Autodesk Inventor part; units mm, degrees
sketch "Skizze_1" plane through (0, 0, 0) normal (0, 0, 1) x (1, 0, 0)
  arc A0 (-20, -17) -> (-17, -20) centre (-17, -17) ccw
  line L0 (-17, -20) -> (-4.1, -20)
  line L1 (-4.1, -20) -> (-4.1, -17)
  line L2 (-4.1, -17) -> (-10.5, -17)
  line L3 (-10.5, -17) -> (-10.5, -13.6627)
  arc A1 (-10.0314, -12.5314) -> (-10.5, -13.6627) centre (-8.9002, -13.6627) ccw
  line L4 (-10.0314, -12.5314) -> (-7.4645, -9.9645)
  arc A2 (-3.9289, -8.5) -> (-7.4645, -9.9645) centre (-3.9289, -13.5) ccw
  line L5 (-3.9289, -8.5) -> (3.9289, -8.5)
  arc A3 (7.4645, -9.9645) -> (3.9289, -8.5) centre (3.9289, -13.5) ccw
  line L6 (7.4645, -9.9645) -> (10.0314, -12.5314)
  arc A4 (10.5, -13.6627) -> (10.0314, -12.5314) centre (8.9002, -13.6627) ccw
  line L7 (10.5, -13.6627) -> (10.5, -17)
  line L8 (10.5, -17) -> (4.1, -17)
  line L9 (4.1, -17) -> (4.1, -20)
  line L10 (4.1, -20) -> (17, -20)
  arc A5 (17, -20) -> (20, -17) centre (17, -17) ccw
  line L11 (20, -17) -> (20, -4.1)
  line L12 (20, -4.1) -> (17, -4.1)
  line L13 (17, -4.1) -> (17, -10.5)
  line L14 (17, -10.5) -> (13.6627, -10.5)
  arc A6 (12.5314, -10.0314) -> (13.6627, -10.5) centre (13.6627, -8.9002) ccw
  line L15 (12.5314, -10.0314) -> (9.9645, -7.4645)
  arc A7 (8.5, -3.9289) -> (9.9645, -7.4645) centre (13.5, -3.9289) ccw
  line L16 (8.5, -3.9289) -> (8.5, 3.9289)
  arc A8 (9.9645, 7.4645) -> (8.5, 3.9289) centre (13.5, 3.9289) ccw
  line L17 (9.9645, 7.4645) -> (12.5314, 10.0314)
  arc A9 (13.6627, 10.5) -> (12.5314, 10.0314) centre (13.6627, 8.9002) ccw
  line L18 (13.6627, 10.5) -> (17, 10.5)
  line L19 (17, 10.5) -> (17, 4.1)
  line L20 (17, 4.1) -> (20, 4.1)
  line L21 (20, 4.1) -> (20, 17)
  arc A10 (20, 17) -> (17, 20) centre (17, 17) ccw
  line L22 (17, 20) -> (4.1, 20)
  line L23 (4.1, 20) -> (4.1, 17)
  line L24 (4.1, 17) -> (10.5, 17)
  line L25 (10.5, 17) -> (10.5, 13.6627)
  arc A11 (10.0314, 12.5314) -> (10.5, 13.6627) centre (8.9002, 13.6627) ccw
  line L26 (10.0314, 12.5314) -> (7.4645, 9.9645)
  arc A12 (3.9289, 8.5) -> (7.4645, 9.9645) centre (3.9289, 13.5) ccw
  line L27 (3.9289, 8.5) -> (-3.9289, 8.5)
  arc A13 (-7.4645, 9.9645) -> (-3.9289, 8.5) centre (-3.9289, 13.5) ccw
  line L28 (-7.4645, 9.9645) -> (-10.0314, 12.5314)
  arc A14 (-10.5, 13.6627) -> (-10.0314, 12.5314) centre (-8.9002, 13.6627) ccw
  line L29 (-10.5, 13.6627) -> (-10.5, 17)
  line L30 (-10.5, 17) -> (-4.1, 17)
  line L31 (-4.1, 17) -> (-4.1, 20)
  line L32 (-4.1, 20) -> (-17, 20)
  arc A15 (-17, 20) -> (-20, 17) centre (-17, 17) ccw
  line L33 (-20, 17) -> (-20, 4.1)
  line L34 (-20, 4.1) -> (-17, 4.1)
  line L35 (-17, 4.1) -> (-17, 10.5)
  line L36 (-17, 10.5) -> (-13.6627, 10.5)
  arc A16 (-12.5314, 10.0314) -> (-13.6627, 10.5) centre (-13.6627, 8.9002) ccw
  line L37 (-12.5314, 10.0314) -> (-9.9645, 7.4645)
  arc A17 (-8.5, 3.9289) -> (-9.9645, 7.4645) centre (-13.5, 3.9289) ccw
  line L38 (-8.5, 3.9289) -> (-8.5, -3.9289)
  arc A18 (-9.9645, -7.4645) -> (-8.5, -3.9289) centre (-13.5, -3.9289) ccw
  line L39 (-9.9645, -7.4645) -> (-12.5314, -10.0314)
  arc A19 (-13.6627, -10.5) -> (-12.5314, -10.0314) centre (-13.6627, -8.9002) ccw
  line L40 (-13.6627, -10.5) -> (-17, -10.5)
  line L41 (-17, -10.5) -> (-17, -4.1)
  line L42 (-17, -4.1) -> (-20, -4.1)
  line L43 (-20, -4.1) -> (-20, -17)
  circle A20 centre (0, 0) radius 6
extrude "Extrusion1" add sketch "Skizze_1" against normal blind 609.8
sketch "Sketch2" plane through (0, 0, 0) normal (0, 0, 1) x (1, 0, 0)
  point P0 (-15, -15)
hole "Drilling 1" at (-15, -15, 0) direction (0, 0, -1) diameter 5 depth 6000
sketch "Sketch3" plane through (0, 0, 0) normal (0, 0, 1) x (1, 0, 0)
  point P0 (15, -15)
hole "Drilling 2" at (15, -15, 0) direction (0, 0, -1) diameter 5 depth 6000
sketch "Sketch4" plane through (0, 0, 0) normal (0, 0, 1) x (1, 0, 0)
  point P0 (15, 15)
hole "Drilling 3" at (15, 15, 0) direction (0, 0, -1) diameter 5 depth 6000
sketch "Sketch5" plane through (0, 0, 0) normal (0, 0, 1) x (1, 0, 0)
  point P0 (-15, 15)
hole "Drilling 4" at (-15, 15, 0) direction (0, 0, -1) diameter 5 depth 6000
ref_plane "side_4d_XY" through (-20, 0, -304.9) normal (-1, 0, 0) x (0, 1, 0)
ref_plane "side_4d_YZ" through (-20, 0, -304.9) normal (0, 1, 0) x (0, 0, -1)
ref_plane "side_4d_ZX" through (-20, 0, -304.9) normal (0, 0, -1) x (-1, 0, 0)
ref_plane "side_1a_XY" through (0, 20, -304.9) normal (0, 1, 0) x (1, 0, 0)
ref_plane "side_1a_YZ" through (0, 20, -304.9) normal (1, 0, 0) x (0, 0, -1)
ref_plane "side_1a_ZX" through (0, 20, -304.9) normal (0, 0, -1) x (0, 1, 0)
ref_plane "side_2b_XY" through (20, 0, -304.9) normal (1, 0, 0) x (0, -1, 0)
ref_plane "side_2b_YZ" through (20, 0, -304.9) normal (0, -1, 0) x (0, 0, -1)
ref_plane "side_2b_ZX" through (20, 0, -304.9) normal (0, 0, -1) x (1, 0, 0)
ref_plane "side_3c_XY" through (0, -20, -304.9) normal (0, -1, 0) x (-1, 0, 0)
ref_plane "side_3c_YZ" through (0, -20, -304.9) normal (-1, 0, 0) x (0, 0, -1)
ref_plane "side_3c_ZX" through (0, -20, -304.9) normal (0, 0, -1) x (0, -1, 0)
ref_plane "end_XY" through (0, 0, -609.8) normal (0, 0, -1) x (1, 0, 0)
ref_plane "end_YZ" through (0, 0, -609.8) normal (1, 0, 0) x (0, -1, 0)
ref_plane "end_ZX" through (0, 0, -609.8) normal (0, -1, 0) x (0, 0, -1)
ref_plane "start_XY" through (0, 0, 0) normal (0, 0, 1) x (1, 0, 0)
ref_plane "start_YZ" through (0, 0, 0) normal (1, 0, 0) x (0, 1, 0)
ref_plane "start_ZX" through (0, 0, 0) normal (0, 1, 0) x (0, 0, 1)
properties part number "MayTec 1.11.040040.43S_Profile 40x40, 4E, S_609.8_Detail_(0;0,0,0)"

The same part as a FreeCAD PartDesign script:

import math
import FreeCAD as App
import Part
import Sketcher
Q = App.Units.Quantity

doc = App.newDocument("Part")
body = doc.addObject("PartDesign::Body", "Body")

sketch1 = body.newObject("Sketcher::SketchObject", "Sketch")
sketch1.AttachmentSupport = (doc.getObject("XY_Plane"), [""])
sketch1.MapMode = "FlatFace"
sketch1.addGeometry([
    Part.LineSegment(App.Vector(-20, -4.1, 0), App.Vector(-20, -17, 0)),
    Part.ArcOfCircle(Part.Circle(App.Vector(-17, -17, 0), App.Vector(0, 0, 1), 3), math.radians(180), math.radians(270)),
    Part.LineSegment(App.Vector(-17, -20, 0), App.Vector(-4.1, -20, 0)),
    Part.LineSegment(App.Vector(-4.1, -20, 0), App.Vector(-4.1, -17, 0)),
    Part.LineSegment(App.Vector(-4.1, -17, 0), App.Vector(-10.5, -17, 0)),
    Part.LineSegment(App.Vector(-10.5, -17, 0), App.Vector(-10.5, -13.7, 0)),
    Part.ArcOfCircle(Part.Circle(App.Vector(-8.9, -13.7, 0), App.Vector(0, 0, 1), 1.6), math.radians(135), math.radians(180)),
    Part.LineSegment(App.Vector(-10, -12.5, 0), App.Vector(-7.5, -10, 0)),
    Part.ArcOfCircle(Part.Circle(App.Vector(-3.9, -13.5, 0), App.Vector(0, 0, 1), 5), math.radians(90), math.radians(135)),
    Part.LineSegment(App.Vector(-3.9, -8.5, 0), App.Vector(3.9, -8.5, 0)),
    Part.ArcOfCircle(Part.Circle(App.Vector(3.9, -13.5, 0), App.Vector(0, 0, 1), 5), math.radians(45), math.radians(90)),
    Part.LineSegment(App.Vector(7.5, -10, 0), App.Vector(10, -12.5, 0)),
    Part.ArcOfCircle(Part.Circle(App.Vector(8.9, -13.7, 0), App.Vector(0, 0, 1), 1.6), math.radians(0), math.radians(45)),
    Part.LineSegment(App.Vector(10.5, -13.7, 0), App.Vector(10.5, -17, 0)),
    Part.LineSegment(App.Vector(10.5, -17, 0), App.Vector(4.1, -17, 0)),
    Part.LineSegment(App.Vector(4.1, -17, 0), App.Vector(4.1, -20, 0)),
    Part.LineSegment(App.Vector(4.1, -20, 0), App.Vector(17, -20, 0)),
    Part.ArcOfCircle(Part.Circle(App.Vector(17, -17, 0), App.Vector(0, 0, 1), 3), math.radians(-90), math.radians(0)),
    Part.LineSegment(App.Vector(20, -17, 0), App.Vector(20, -4.1, 0)),
    Part.LineSegment(App.Vector(20, -4.1, 0), App.Vector(17, -4.1, 0)),
    Part.LineSegment(App.Vector(17, -4.1, 0), App.Vector(17, -10.5, 0)),
    Part.LineSegment(App.Vector(17, -10.5, 0), App.Vector(13.7, -10.5, 0)),
    Part.ArcOfCircle(Part.Circle(App.Vector(13.7, -8.9, 0), App.Vector(0, 0, 1), 1.6), math.radians(-135), math.radians(-90)),
    Part.LineSegment(App.Vector(12.5, -10, 0), App.Vector(10, -7.5, 0)),
    Part.ArcOfCircle(Part.Circle(App.Vector(13.5, -3.9, 0), App.Vector(0, 0, 1), 5), math.radians(180), math.radians(225)),
    Part.LineSegment(App.Vector(8.5, -3.9, 0), App.Vector(8.5, 3.9, 0)),
    Part.ArcOfCircle(Part.Circle(App.Vector(13.5, 3.9, 0), App.Vector(0, 0, 1), 5), math.radians(135), math.radians(180)),
    Part.LineSegment(App.Vector(10, 7.5, 0), App.Vector(12.5, 10, 0)),
    Part.ArcOfCircle(Part.Circle(App.Vector(13.7, 8.9, 0), App.Vector(0, 0, 1), 1.6), math.radians(90), math.radians(135)),
    Part.LineSegment(App.Vector(13.7, 10.5, 0), App.Vector(17, 10.5, 0)),
    Part.LineSegment(App.Vector(17, 10.5, 0), App.Vector(17, 4.1, 0)),
    Part.LineSegment(App.Vector(17, 4.1, 0), App.Vector(20, 4.1, 0)),
    Part.LineSegment(App.Vector(20, 4.1, 0), App.Vector(20, 17, 0)),
    Part.ArcOfCircle(Part.Circle(App.Vector(17, 17, 0), App.Vector(0, 0, 1), 3), math.radians(0), math.radians(90)),
    Part.LineSegment(App.Vector(17, 20, 0), App.Vector(4.1, 20, 0)),
    Part.LineSegment(App.Vector(4.1, 20, 0), App.Vector(4.1, 17, 0)),
    Part.LineSegment(App.Vector(4.1, 17, 0), App.Vector(10.5, 17, 0)),
    Part.LineSegment(App.Vector(10.5, 17, 0), App.Vector(10.5, 13.7, 0)),
    Part.ArcOfCircle(Part.Circle(App.Vector(8.9, 13.7, 0), App.Vector(0, 0, 1), 1.6), math.radians(-45), math.radians(0)),
    Part.LineSegment(App.Vector(10, 12.5, 0), App.Vector(7.5, 10, 0)),
    Part.ArcOfCircle(Part.Circle(App.Vector(3.9, 13.5, 0), App.Vector(0, 0, 1), 5), math.radians(-90), math.radians(-45)),
    Part.LineSegment(App.Vector(3.9, 8.5, 0), App.Vector(-3.9, 8.5, 0)),
    Part.ArcOfCircle(Part.Circle(App.Vector(-3.9, 13.5, 0), App.Vector(0, 0, 1), 5), math.radians(-135), math.radians(-90)),
    Part.LineSegment(App.Vector(-7.5, 10, 0), App.Vector(-10, 12.5, 0)),
    Part.ArcOfCircle(Part.Circle(App.Vector(-8.9, 13.7, 0), App.Vector(0, 0, 1), 1.6), math.radians(180), math.radians(225)),
    Part.LineSegment(App.Vector(-10.5, 13.7, 0), App.Vector(-10.5, 17, 0)),
    Part.LineSegment(App.Vector(-10.5, 17, 0), App.Vector(-4.1, 17, 0)),
    Part.LineSegment(App.Vector(-4.1, 17, 0), App.Vector(-4.1, 20, 0)),
    Part.LineSegment(App.Vector(-4.1, 20, 0), App.Vector(-17, 20, 0)),
    Part.ArcOfCircle(Part.Circle(App.Vector(-17, 17, 0), App.Vector(0, 0, 1), 3), math.radians(90), math.radians(180)),
    Part.LineSegment(App.Vector(-20, 17, 0), App.Vector(-20, 4.1, 0)),
    Part.LineSegment(App.Vector(-20, 4.1, 0), App.Vector(-17, 4.1, 0)),
    Part.LineSegment(App.Vector(-17, 4.1, 0), App.Vector(-17, 10.5, 0)),
    Part.LineSegment(App.Vector(-17, 10.5, 0), App.Vector(-13.7, 10.5, 0)),
    Part.ArcOfCircle(Part.Circle(App.Vector(-13.7, 8.9, 0), App.Vector(0, 0, 1), 1.6), math.radians(45), math.radians(90)),
    Part.LineSegment(App.Vector(-12.5, 10, 0), App.Vector(-10, 7.5, 0)),
    Part.ArcOfCircle(Part.Circle(App.Vector(-13.5, 3.9, 0), App.Vector(0, 0, 1), 5), math.radians(0), math.radians(45)),
    Part.LineSegment(App.Vector(-8.5, 3.9, 0), App.Vector(-8.5, -3.9, 0)),
    Part.ArcOfCircle(Part.Circle(App.Vector(-13.5, -3.9, 0), App.Vector(0, 0, 1), 5), math.radians(-45), math.radians(0)),
    Part.LineSegment(App.Vector(-10, -7.5, 0), App.Vector(-12.5, -10, 0)),
    Part.ArcOfCircle(Part.Circle(App.Vector(-13.7, -8.9, 0), App.Vector(0, 0, 1), 1.6), math.radians(-90), math.radians(-45)),
    Part.LineSegment(App.Vector(-13.7, -10.5, 0), App.Vector(-17, -10.5, 0)),
    Part.LineSegment(App.Vector(-17, -10.5, 0), App.Vector(-17, -4.1, 0)),
    Part.LineSegment(App.Vector(-17, -4.1, 0), App.Vector(-20, -4.1, 0)),
    Part.Circle(App.Vector(0, 0, 0), App.Vector(0, 0, 1), 6),
], False)
sketch1.addConstraint([
    Sketcher.Constraint("Tangent", 0, 2, 1, 1),
    Sketcher.Constraint("Tangent", 1, 2, 2, 1),
    Sketcher.Constraint("Coincident", 2, 2, 3, 1),
    Sketcher.Constraint("Coincident", 3, 2, 4, 1),
    Sketcher.Constraint("Coincident", 4, 2, 5, 1),
    Sketcher.Constraint("Tangent", 5, 2, 6, 2),
    Sketcher.Constraint("Tangent", 6, 1, 7, 1),
    Sketcher.Constraint("Tangent", 7, 2, 8, 2),
    Sketcher.Constraint("Tangent", 8, 1, 9, 1),
    Sketcher.Constraint("Tangent", 9, 2, 10, 2),
    Sketcher.Constraint("Tangent", 10, 1, 11, 1),
    Sketcher.Constraint("Tangent", 11, 2, 12, 2),
    Sketcher.Constraint("Tangent", 12, 1, 13, 1),
    Sketcher.Constraint("Coincident", 13, 2, 14, 1),
    Sketcher.Constraint("Coincident", 14, 2, 15, 1),
    Sketcher.Constraint("Coincident", 15, 2, 16, 1),
    Sketcher.Constraint("Tangent", 16, 2, 17, 1),
    Sketcher.Constraint("Tangent", 17, 2, 18, 1),
    Sketcher.Constraint("Coincident", 18, 2, 19, 1),
    Sketcher.Constraint("Coincident", 19, 2, 20, 1),
    Sketcher.Constraint("Coincident", 20, 2, 21, 1),
    Sketcher.Constraint("Tangent", 21, 2, 22, 2),
    Sketcher.Constraint("Tangent", 22, 1, 23, 1),
    Sketcher.Constraint("Tangent", 23, 2, 24, 2),
    Sketcher.Constraint("Tangent", 24, 1, 25, 1),
    Sketcher.Constraint("Tangent", 25, 2, 26, 2),
    Sketcher.Constraint("Tangent", 26, 1, 27, 1),
    Sketcher.Constraint("Tangent", 27, 2, 28, 2),
    Sketcher.Constraint("Tangent", 28, 1, 29, 1),
    Sketcher.Constraint("Coincident", 29, 2, 30, 1),
    Sketcher.Constraint("Coincident", 30, 2, 31, 1),
    Sketcher.Constraint("Coincident", 31, 2, 32, 1),
    Sketcher.Constraint("Tangent", 32, 2, 33, 1),
    Sketcher.Constraint("Tangent", 33, 2, 34, 1),
    Sketcher.Constraint("Coincident", 34, 2, 35, 1),
    Sketcher.Constraint("Coincident", 35, 2, 36, 1),
    Sketcher.Constraint("Coincident", 36, 2, 37, 1),
    Sketcher.Constraint("Tangent", 37, 2, 38, 2),
    Sketcher.Constraint("Tangent", 38, 1, 39, 1),
    Sketcher.Constraint("Tangent", 39, 2, 40, 2),
    Sketcher.Constraint("Tangent", 40, 1, 41, 1),
    Sketcher.Constraint("Tangent", 41, 2, 42, 2),
    Sketcher.Constraint("Tangent", 42, 1, 43, 1),
    Sketcher.Constraint("Tangent", 43, 2, 44, 2),
    Sketcher.Constraint("Tangent", 44, 1, 45, 1),
    Sketcher.Constraint("Coincident", 45, 2, 46, 1),
    Sketcher.Constraint("Coincident", 46, 2, 47, 1),
    Sketcher.Constraint("Coincident", 47, 2, 48, 1),
    Sketcher.Constraint("Tangent", 48, 2, 49, 1),
    Sketcher.Constraint("Tangent", 49, 2, 50, 1),
    Sketcher.Constraint("Coincident", 50, 2, 51, 1),
    Sketcher.Constraint("Coincident", 51, 2, 52, 1),
    Sketcher.Constraint("Coincident", 52, 2, 53, 1),
    Sketcher.Constraint("Tangent", 53, 2, 54, 2),
    Sketcher.Constraint("Tangent", 54, 1, 55, 1),
    Sketcher.Constraint("Tangent", 55, 2, 56, 2),
    Sketcher.Constraint("Tangent", 56, 1, 57, 1),
    Sketcher.Constraint("Tangent", 57, 2, 58, 2),
    Sketcher.Constraint("Tangent", 58, 1, 59, 1),
    Sketcher.Constraint("Tangent", 59, 2, 60, 2),
    Sketcher.Constraint("Tangent", 60, 1, 61, 1),
    Sketcher.Constraint("Coincident", 61, 2, 62, 1),
    Sketcher.Constraint("Coincident", 62, 2, 63, 1),
    Sketcher.Constraint("Coincident", 63, 2, 0, 1),
    Sketcher.Constraint("Vertical", 0),
    Sketcher.Constraint("Horizontal", 2),
    Sketcher.Constraint("Vertical", 3),
    Sketcher.Constraint("Horizontal", 4),
    Sketcher.Constraint("Vertical", 5),
    Sketcher.Constraint("Horizontal", 9),
    Sketcher.Constraint("Vertical", 13),
    Sketcher.Constraint("Horizontal", 14),
    Sketcher.Constraint("Vertical", 15),
    Sketcher.Constraint("Horizontal", 16),
    Sketcher.Constraint("Vertical", 18),
    Sketcher.Constraint("Horizontal", 19),
    Sketcher.Constraint("Vertical", 20),
    Sketcher.Constraint("Horizontal", 21),
    Sketcher.Constraint("Vertical", 25),
    Sketcher.Constraint("Horizontal", 29),
    Sketcher.Constraint("Vertical", 30),
    Sketcher.Constraint("Horizontal", 31),
    Sketcher.Constraint("Vertical", 32),
    Sketcher.Constraint("Horizontal", 34),
    Sketcher.Constraint("Vertical", 35),
    Sketcher.Constraint("Horizontal", 36),
    Sketcher.Constraint("Vertical", 37),
    Sketcher.Constraint("Horizontal", 41),
    Sketcher.Constraint("Vertical", 45),
    Sketcher.Constraint("Horizontal", 46),
    Sketcher.Constraint("Vertical", 47),
    Sketcher.Constraint("Horizontal", 48),
    Sketcher.Constraint("Vertical", 50),
    Sketcher.Constraint("Horizontal", 51),
    Sketcher.Constraint("Vertical", 52),
    Sketcher.Constraint("Horizontal", 53),
    Sketcher.Constraint("Vertical", 57),
    Sketcher.Constraint("Horizontal", 61),
    Sketcher.Constraint("Vertical", 62),
    Sketcher.Constraint("Horizontal", 63),
    Sketcher.Constraint("Coincident", 64, 3, -1, 1),
    Sketcher.Constraint("Equal", 8, 10),
    Sketcher.Constraint("Equal", 6, 12),
    Sketcher.Constraint("Equal", 1, 17),
    Sketcher.Constraint("Equal", 12, 22),
    Sketcher.Constraint("Equal", 10, 24),
    Sketcher.Constraint("Equal", 24, 26),
    Sketcher.Constraint("Equal", 22, 28),
    Sketcher.Constraint("Equal", 17, 33),
    Sketcher.Constraint("Equal", 28, 38),
    Sketcher.Constraint("Equal", 26, 40),
    Sketcher.Constraint("Equal", 40, 42),
    Sketcher.Constraint("Equal", 38, 44),
    Sketcher.Constraint("Equal", 33, 49),
    Sketcher.Constraint("Equal", 44, 54),
    Sketcher.Constraint("Equal", 42, 56),
    Sketcher.Constraint("Equal", 56, 58),
    Sketcher.Constraint("Equal", 54, 60),
    Sketcher.Constraint("Symmetric", 1, 3, 33, 3, -1, 1),
    Sketcher.Constraint("Symmetric", 6, 3, 38, 3, -1, 1),
    Sketcher.Constraint("Symmetric", 8, 3, 40, 3, -1, 1),
    Sketcher.Constraint("Symmetric", 12, 3, 44, 3, -1, 1),
    Sketcher.Constraint("Symmetric", 17, 3, 49, 3, -1, 1),
    Sketcher.Constraint("Symmetric", 22, 3, 54, 3, -1, 1),
    Sketcher.Constraint("Symmetric", 24, 3, 56, 3, -1, 1),
    Sketcher.Constraint("Symmetric", 28, 3, 60, 3, -1, 1),
    Sketcher.Constraint("Symmetric", 3, 2, 35, 2, -1, 1),
    Sketcher.Constraint("Symmetric", 14, 2, 46, 2, -1, 1),
    Sketcher.Constraint("Symmetric", 19, 2, 51, 2, -1, 1),
    Sketcher.Constraint("Symmetric", 30, 2, 62, 2, -1, 1),
    Sketcher.Constraint("Symmetric", 6, 3, 12, 3, -2),
    Sketcher.Constraint("Symmetric", 1, 3, 17, 3, -2),
    Sketcher.Constraint("Symmetric", 28, 3, 54, 3, -2),
    Sketcher.Constraint("Symmetric", 3, 2, 14, 2, -2),
    Sketcher.Constraint("Symmetric", 30, 2, 51, 2, -2),
    Sketcher.Constraint("Perpendicular", 7, 11),
    Sketcher.Constraint("Parallel", 11, 23),
    Sketcher.Constraint("Perpendicular", 23, 27),
    Sketcher.Constraint("Perpendicular", 39, 43),
    Sketcher.Constraint("Perpendicular", 55, 59),
    Sketcher.Constraint("Horizontal", 26, 3, 56, 3),
    Sketcher.Constraint("Horizontal", 0, 2, 3, 2),
    Sketcher.Constraint("Vertical", 16, 2, 19, 2),
    Sketcher.Constraint("Equal", 48, 0),
    Sketcher.Constraint("Equal", 61, 5),
    Sketcher.Constraint("Equal", 46, 20),
    Sketcher.Constraint("Equal", 41, 25),
    Sketcher.Constraint("Equal", 11, 23),
    Sketcher.Constraint("Diameter", 64, Q("12 mm")),
    Sketcher.Constraint("Radius", 1, Q("3 mm")),
    Sketcher.Constraint("Radius", 8, Q("5 mm")),
    Sketcher.Constraint("DistanceX", 2, 1, 2, 2, Q("12.9 mm")),
    Sketcher.Constraint("DistanceX", 4, 2, 4, 1, Q("6.4 mm")),
    Sketcher.Constraint("DistanceX", 1, 3, -1, 1, Q("17 mm")),
    Sketcher.Constraint("DistanceY", 8, 3, -1, 1, Q("13.5 mm")),
    Sketcher.Constraint("Radius", 6, Q("1.5998 mm")),
    Sketcher.Constraint("DistanceX", 9, 1, 9, 2, Q("7.8578 mm")),
])
pad1 = body.newObject("PartDesign::Pad", "Pad")
pad1.Profile = sketch1
pad1.Length = 609.8
pad1.Reversed = True

sketch2 = body.newObject("Sketcher::SketchObject", "Sketch001")
sketch2.AttachmentSupport = (doc.getObject("XY_Plane"), [""])
sketch2.MapMode = "FlatFace"
sketch2.addGeometry(Part.Circle(App.Vector(-15, -15, 0), App.Vector(0, 0, 1), 2.5), False)
sketch2.addConstraint([
    Sketcher.Constraint("Diameter", 0, Q("5 mm")),
    Sketcher.Constraint("DistanceX", 0, 3, -1, 1, Q("15 mm")),
    Sketcher.Constraint("DistanceY", 0, 3, -1, 1, Q("15 mm")),
])
doc.recompute()
hole = body.newObject("PartDesign::Hole", "Hole")
hole.Profile = sketch2
hole.ThreadType = "None"
hole.Diameter = 5
hole.DepthType = "Dimension"
hole.Depth = 6000
hole.DrillPoint = "Flat"

sketch3 = body.newObject("Sketcher::SketchObject", "Sketch002")
sketch3.AttachmentSupport = (doc.getObject("XY_Plane"), [""])
sketch3.MapMode = "FlatFace"
sketch3.addGeometry(Part.Circle(App.Vector(15, -15, 0), App.Vector(0, 0, 1), 2.5), False)
sketch3.addConstraint([
    Sketcher.Constraint("Diameter", 0, Q("5 mm")),
    Sketcher.Constraint("DistanceX", -1, 1, 0, 3, Q("15 mm")),
    Sketcher.Constraint("DistanceY", 0, 3, -1, 1, Q("15 mm")),
])
doc.recompute()
hole2 = body.newObject("PartDesign::Hole", "Hole001")
hole2.Profile = sketch3
hole2.ThreadType = "None"
hole2.Diameter = 5
hole2.DepthType = "Dimension"
hole2.Depth = 6000
hole2.DrillPoint = "Flat"

sketch4 = body.newObject("Sketcher::SketchObject", "Sketch003")
sketch4.AttachmentSupport = (doc.getObject("XY_Plane"), [""])
sketch4.MapMode = "FlatFace"
sketch4.addGeometry(Part.Circle(App.Vector(15, 15, 0), App.Vector(0, 0, 1), 2.5), False)
sketch4.addConstraint([
    Sketcher.Constraint("Diameter", 0, Q("5 mm")),
    Sketcher.Constraint("DistanceX", -1, 1, 0, 3, Q("15 mm")),
    Sketcher.Constraint("DistanceY", -1, 1, 0, 3, Q("15 mm")),
])
doc.recompute()
hole3 = body.newObject("PartDesign::Hole", "Hole002")
hole3.Profile = sketch4
hole3.ThreadType = "None"
hole3.Diameter = 5
hole3.DepthType = "Dimension"
hole3.Depth = 6000
hole3.DrillPoint = "Flat"

sketch5 = body.newObject("Sketcher::SketchObject", "Sketch004")
sketch5.AttachmentSupport = (doc.getObject("XY_Plane"), [""])
sketch5.MapMode = "FlatFace"
sketch5.addGeometry(Part.Circle(App.Vector(-15, 15, 0), App.Vector(0, 0, 1), 2.5), False)
sketch5.addConstraint([
    Sketcher.Constraint("Diameter", 0, Q("5 mm")),
    Sketcher.Constraint("DistanceX", 0, 3, -1, 1, Q("15 mm")),
    Sketcher.Constraint("DistanceY", -1, 1, 0, 3, Q("15 mm")),
])
doc.recompute()
hole4 = body.newObject("PartDesign::Hole", "Hole003")
hole4.Profile = sketch5
hole4.ThreadType = "None"
hole4.Diameter = 5
hole4.DepthType = "Dimension"
hole4.Depth = 6000
hole4.DrillPoint = "Flat"

doc.recompute()
